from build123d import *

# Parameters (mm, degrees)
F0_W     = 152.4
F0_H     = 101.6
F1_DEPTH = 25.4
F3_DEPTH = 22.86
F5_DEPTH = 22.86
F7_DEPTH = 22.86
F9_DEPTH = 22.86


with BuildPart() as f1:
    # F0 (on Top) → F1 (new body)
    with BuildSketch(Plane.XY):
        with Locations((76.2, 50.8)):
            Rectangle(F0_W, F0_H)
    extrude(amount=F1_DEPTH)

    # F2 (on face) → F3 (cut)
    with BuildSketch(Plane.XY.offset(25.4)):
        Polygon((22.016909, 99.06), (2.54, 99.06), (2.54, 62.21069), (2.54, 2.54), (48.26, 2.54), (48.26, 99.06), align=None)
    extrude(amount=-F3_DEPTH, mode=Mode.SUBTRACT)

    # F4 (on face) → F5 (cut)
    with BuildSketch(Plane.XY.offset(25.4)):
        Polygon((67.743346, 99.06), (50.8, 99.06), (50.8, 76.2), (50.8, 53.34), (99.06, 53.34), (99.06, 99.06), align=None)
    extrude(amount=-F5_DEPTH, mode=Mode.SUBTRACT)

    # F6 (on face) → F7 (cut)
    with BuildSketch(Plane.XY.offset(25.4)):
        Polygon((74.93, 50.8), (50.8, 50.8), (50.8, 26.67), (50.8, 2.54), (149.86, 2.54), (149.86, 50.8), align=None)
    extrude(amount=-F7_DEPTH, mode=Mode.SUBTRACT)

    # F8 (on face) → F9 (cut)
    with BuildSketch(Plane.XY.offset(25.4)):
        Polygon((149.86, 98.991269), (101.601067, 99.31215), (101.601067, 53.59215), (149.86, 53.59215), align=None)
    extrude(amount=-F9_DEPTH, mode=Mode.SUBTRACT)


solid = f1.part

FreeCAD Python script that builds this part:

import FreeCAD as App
import Part
import Sketcher
from FreeCAD import Vector
Q = App.Units.Quantity

doc = App.newDocument("Part")
body = doc.addObject("PartDesign::Body", "Body")

sketch1 = body.newObject("Sketcher::SketchObject", "Sketch")
sketch1.AttachmentSupport = (doc.getObject("XY_Plane"), [""])
sketch1.MapMode = "FlatFace"
sketch1.addGeometry([
    Part.LineSegment(Vector(0, 102, 0), Vector(0, 0, 0)),
    Part.LineSegment(Vector(0, 0, 0), Vector(152, 0, 0)),
    Part.LineSegment(Vector(152, 0, 0), Vector(152, 102, 0)),
    Part.LineSegment(Vector(152, 102, 0), Vector(0, 102, 0)),
], False)
sketch1.addConstraint([
    Sketcher.Constraint("Coincident", 0, 2, 1, 1),
    Sketcher.Constraint("Coincident", 1, 2, 2, 1),
    Sketcher.Constraint("Coincident", 2, 2, 3, 1),
    Sketcher.Constraint("Coincident", 3, 2, 0, 1),
    Sketcher.Constraint("Vertical", 0),
    Sketcher.Constraint("Horizontal", 1),
    Sketcher.Constraint("Vertical", 2),
    Sketcher.Constraint("Horizontal", 3),
    Sketcher.Constraint("Coincident", 0, 2, -1, 1),
    Sketcher.Constraint("DistanceX", 1, 1, 1, 2, Q("6 in")),
    Sketcher.Constraint("DistanceY", 0, 2, 0, 1, Q("4 in")),
])
pad1 = body.newObject("PartDesign::Pad", "Pad")
pad1.Profile = sketch1
pad1.Length = Q("1 in")

sketch2 = body.newObject("Sketcher::SketchObject", "Sketch001")
sketch2.AttachmentSupport = (doc.getObject("XY_Plane"), [""])
sketch2.MapMode = "FlatFace"
sketch2.AttachmentOffset = App.Placement(Vector(0, 0, 1 * 25.4), App.Rotation())
sketch2.addGeometry([
    Part.LineSegment(Vector(3, 99, 0), Vector(3, 3, 0)),
    Part.LineSegment(Vector(3, 3, 0), Vector(48, 3, 0)),
    Part.LineSegment(Vector(48, 3, 0), Vector(48, 99, 0)),
    Part.LineSegment(Vector(48, 99, 0), Vector(3, 99, 0)),
], False)
sketch2.addConstraint([
    Sketcher.Constraint("Coincident", 0, 2, 1, 1),
    Sketcher.Constraint("Coincident", 1, 2, 2, 1),
    Sketcher.Constraint("Coincident", 2, 2, 3, 1),
    Sketcher.Constraint("Coincident", 3, 2, 0, 1),
    Sketcher.Constraint("Vertical", 0),
    Sketcher.Constraint("Horizontal", 1),
    Sketcher.Constraint("Vertical", 2),
    Sketcher.Constraint("Horizontal", 3),
    Sketcher.Constraint("DistanceX", 1, 1, 1, 2, Q("1.8 in")),
    Sketcher.Constraint("DistanceY", 0, 2, 0, 1, Q("3.8 in")),
    Sketcher.Constraint("DistanceX", -1, 1, 0, 2, Q("0.1 in")),
    Sketcher.Constraint("DistanceY", -1, 1, 0, 2, Q("0.1 in")),
])
pocket1 = body.newObject("PartDesign::Pocket", "Pocket")
pocket1.Profile = sketch2
pocket1.Length = Q("0.9 in")

sketch3 = body.newObject("Sketcher::SketchObject", "Sketch002")
sketch3.AttachmentSupport = (doc.getObject("XY_Plane"), [""])
sketch3.MapMode = "FlatFace"
sketch3.AttachmentOffset = App.Placement(Vector(0, 0, 1 * 25.4), App.Rotation())
sketch3.addGeometry([
    Part.LineSegment(Vector(51, 99, 0), Vector(51, 53, 0)),
    Part.LineSegment(Vector(51, 53, 0), Vector(99, 53, 0)),
    Part.LineSegment(Vector(99, 53, 0), Vector(99, 99, 0)),
    Part.LineSegment(Vector(99, 99, 0), Vector(51, 99, 0)),
], False)
sketch3.addConstraint([
    Sketcher.Constraint("Coincident", 0, 2, 1, 1),
    Sketcher.Constraint("Coincident", 1, 2, 2, 1),
    Sketcher.Constraint("Coincident", 2, 2, 3, 1),
    Sketcher.Constraint("Coincident", 3, 2, 0, 1),
    Sketcher.Constraint("Vertical", 0),
    Sketcher.Constraint("Horizontal", 1),
    Sketcher.Constraint("Vertical", 2),
    Sketcher.Constraint("Horizontal", 3),
    Sketcher.Constraint("DistanceX", 1, 1, 1, 2, Q("1.9 in")),
    Sketcher.Constraint("DistanceY", 0, 2, 0, 1, Q("1.8 in")),
    Sketcher.Constraint("DistanceX", -1, 1, 0, 2, Q("2 in")),
    Sketcher.Constraint("DistanceY", -1, 1, 0, 2, Q("2.1 in")),
])
pocket2 = body.newObject("PartDesign::Pocket", "Pocket001")
pocket2.Profile = sketch3
pocket2.Length = Q("0.9 in")

sketch4 = body.newObject("Sketcher::SketchObject", "Sketch003")
sketch4.AttachmentSupport = (doc.getObject("XY_Plane"), [""])
sketch4.MapMode = "FlatFace"
sketch4.AttachmentOffset = App.Placement(Vector(0, 0, 1 * 25.4), App.Rotation())
sketch4.addGeometry([
    Part.LineSegment(Vector(51, 51, 0), Vector(51, 3, 0)),
    Part.LineSegment(Vector(51, 3, 0), Vector(150, 3, 0)),
    Part.LineSegment(Vector(150, 3, 0), Vector(150, 51, 0)),
    Part.LineSegment(Vector(150, 51, 0), Vector(51, 51, 0)),
], False)
sketch4.addConstraint([
    Sketcher.Constraint("Coincident", 0, 2, 1, 1),
    Sketcher.Constraint("Coincident", 1, 2, 2, 1),
    Sketcher.Constraint("Coincident", 2, 2, 3, 1),
    Sketcher.Constraint("Coincident", 3, 2, 0, 1),
    Sketcher.Constraint("Vertical", 0),
    Sketcher.Constraint("Horizontal", 1),
    Sketcher.Constraint("Vertical", 2),
    Sketcher.Constraint("Horizontal", 3),
    Sketcher.Constraint("DistanceX", 1, 1, 1, 2, Q("3.9 in")),
    Sketcher.Constraint("DistanceY", 0, 2, 0, 1, Q("1.9 in")),
    Sketcher.Constraint("DistanceX", -1, 1, 0, 2, Q("2 in")),
    Sketcher.Constraint("DistanceY", -1, 1, 2, 2, Q("2 in")),
])
pocket3 = body.newObject("PartDesign::Pocket", "Pocket002")
pocket3.Profile = sketch4
pocket3.Length = Q("0.9 in")

sketch5 = body.newObject("Sketcher::SketchObject", "Sketch004")
sketch5.AttachmentSupport = (doc.getObject("XY_Plane"), [""])
sketch5.MapMode = "FlatFace"
sketch5.AttachmentOffset = App.Placement(Vector(0, 0, 1 * 25.4), App.Rotation())
sketch5.addGeometry([
    Part.LineSegment(Vector(150, 99, 0), Vector(102, 99, 0)),
    Part.LineSegment(Vector(102, 99, 0), Vector(102, 54, 0)),
    Part.LineSegment(Vector(102, 54, 0), Vector(150, 54, 0)),
    Part.LineSegment(Vector(150, 54, 0), Vector(150, 99, 0)),
], False)
sketch5.addConstraint([
    Sketcher.Constraint("Coincident", 0, 2, 1, 1),
    Sketcher.Constraint("Coincident", 1, 2, 2, 1),
    Sketcher.Constraint("Coincident", 2, 2, 3, 1),
    Sketcher.Constraint("Coincident", 3, 2, 0, 1),
    Sketcher.Constraint("Vertical", 1),
    Sketcher.Constraint("Horizontal", 2),
    Sketcher.Constraint("Vertical", 3),
    Sketcher.Constraint("DistanceY", 1, 2, 1, 1, Q("1.8 in")),
    Sketcher.Constraint("Distance", 0, Q("1.9 in")),
    Sketcher.Constraint("DistanceX", -1, 1, 2, 2, Q("5.9 in")),
    Sketcher.Constraint("DistanceY", 3, 1, 3, 2, Q("45.399119 mm")),
    Sketcher.Constraint("DistanceY", -1, 1, 0, 2, Q("99.31215 mm")),
])
pocket4 = body.newObject("PartDesign::Pocket", "Pocket003")
pocket4.Profile = sketch5
pocket4.Length = Q("0.9 in")

doc.recompute()
